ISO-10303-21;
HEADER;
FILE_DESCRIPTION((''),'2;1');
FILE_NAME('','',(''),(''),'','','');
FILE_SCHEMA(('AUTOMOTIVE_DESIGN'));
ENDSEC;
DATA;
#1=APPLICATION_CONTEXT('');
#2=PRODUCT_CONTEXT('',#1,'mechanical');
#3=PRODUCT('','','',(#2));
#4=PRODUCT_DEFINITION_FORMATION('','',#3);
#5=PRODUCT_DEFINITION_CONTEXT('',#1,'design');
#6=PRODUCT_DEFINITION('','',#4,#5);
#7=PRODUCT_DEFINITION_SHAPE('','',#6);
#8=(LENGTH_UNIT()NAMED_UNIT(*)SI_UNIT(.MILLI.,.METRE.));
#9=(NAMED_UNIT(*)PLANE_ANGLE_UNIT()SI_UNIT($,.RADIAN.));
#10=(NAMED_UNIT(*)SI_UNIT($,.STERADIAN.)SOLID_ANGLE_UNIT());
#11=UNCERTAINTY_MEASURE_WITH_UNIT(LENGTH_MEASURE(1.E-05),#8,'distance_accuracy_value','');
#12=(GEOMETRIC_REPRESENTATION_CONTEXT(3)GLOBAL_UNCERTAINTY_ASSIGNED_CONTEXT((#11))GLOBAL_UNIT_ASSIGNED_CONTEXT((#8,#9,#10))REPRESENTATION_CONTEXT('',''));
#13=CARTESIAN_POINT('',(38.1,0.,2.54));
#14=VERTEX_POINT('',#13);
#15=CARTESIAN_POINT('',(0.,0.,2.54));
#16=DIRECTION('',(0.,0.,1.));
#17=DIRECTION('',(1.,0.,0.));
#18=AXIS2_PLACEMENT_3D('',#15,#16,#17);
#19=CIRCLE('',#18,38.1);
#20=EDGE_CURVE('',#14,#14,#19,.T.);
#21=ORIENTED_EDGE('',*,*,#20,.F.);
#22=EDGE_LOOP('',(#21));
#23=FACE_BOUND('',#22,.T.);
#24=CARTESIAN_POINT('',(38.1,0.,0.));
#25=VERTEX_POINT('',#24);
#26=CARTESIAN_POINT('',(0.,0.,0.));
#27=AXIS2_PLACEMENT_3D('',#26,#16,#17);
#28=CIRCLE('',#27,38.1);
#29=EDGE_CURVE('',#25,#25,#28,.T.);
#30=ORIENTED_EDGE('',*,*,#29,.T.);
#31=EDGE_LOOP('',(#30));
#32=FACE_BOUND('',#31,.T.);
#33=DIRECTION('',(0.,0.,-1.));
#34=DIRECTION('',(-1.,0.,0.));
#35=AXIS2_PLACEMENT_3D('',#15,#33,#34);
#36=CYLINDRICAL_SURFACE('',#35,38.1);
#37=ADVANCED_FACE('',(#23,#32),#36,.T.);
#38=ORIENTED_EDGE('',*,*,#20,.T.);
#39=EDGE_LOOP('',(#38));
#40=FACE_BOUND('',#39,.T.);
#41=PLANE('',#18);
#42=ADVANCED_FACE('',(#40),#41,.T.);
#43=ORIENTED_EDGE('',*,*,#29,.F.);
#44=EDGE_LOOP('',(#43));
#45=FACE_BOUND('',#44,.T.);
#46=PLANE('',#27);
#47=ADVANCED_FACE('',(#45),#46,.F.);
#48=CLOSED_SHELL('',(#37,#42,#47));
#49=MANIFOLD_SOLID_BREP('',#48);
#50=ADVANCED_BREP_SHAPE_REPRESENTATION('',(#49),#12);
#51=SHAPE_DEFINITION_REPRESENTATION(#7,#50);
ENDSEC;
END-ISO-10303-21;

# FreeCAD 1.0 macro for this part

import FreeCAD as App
import Part
import Sketcher
from FreeCAD import Vector
Q = App.Units.Quantity

doc = App.newDocument("Part")
params = doc.addObject("Spreadsheet::Sheet", "Params")
for row, (alias, value) in enumerate([
    ("sketch1_diameter", "3 in"),
    ("pad1_length", "0.1 in"),
], start=1):
    params.set(f"A{row}", alias)
    params.set(f"B{row}", "=" + value)
    params.setAlias(f"B{row}", alias)

body = doc.addObject("PartDesign::Body", "Body")

# Sketch on XY plane
sketch1 = body.newObject("Sketcher::SketchObject", "Sketch")
sketch1.AttachmentSupport = (doc.getObject("XY_Plane"), [""])
sketch1.MapMode = "FlatFace"
sketch1.addGeometry(Part.Circle(Vector(0, 0, 0), Vector(0, 0, 1), 38), False)
sketch1.addConstraint(Sketcher.Constraint("Coincident", 0, 3, -1, 1))
sketch1.addConstraint(Sketcher.Constraint("Diameter", 0, Q("3 in")))
sketch1.setExpression("Constraints[1]", "Params.sketch1_diameter")
pad1 = body.newObject("PartDesign::Pad", "Pad")
pad1.Profile = sketch1
pad1.setExpression("Length", "Params.pad1_length")

doc.recompute()
